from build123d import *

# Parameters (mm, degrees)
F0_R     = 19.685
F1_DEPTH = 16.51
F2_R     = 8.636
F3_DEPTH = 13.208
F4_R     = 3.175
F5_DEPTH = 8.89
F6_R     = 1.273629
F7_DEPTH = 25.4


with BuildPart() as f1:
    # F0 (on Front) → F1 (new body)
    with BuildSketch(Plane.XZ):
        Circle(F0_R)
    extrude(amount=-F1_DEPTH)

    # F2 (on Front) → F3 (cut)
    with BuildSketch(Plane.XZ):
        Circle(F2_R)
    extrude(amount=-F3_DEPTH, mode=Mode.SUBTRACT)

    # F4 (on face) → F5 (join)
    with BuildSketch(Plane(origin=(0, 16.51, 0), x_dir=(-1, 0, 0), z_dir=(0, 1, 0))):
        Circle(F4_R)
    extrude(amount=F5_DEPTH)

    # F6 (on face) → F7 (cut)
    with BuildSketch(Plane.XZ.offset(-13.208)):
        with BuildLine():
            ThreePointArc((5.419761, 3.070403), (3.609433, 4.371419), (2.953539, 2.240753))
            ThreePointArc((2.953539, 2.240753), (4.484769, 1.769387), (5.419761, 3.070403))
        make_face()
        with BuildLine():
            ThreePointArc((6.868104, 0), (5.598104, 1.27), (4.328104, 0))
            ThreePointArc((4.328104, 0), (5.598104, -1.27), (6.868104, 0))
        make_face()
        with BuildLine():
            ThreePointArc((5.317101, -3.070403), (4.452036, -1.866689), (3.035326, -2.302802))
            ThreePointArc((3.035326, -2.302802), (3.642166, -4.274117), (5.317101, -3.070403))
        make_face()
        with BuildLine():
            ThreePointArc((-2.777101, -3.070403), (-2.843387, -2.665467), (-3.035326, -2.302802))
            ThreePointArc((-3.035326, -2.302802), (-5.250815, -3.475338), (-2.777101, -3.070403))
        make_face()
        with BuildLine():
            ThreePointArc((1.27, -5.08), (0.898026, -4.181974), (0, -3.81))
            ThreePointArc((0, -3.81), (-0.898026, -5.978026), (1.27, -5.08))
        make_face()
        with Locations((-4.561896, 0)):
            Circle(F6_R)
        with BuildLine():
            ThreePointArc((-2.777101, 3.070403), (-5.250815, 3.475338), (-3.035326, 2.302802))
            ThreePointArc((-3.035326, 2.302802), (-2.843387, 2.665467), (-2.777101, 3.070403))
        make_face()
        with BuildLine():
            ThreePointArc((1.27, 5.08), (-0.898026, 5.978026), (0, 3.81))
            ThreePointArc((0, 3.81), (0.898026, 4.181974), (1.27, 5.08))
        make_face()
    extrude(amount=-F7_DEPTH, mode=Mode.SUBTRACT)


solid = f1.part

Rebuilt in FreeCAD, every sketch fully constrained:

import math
import FreeCAD as App
import Part
import Sketcher
from FreeCAD import Vector
Q = App.Units.Quantity

doc = App.newDocument("Part")
body = doc.addObject("PartDesign::Body", "Body")

# Sketch on XZ plane
sketch1 = doc.addObject("Sketcher::SketchObject", "Sketch")
body.addObject(sketch1)
sketch1.AttachmentSupport = (doc.XZ_Plane, [""])
sketch1.MapMode = "FlatFace"
sketch1.addGeometry(Part.Circle(Vector(0, 0, 0), Vector(0, 0, 1), 19.685), False)
sketch1.addConstraint(Sketcher.Constraint("Coincident", 0, 3, -1, 1))
sketch1.addConstraint(Sketcher.Constraint("Diameter", 0, Q("1.55 in")))
pad1 = doc.addObject("PartDesign::Pad", "Pad")
body.addObject(pad1)
pad1.Profile = sketch1
pad1.Length = Q("0.65 in")
pad1.Reversed = True

# Sketch on XZ plane
sketch2 = doc.addObject("Sketcher::SketchObject", "Sketch001")
body.addObject(sketch2)
sketch2.AttachmentSupport = (doc.XZ_Plane, [""])
sketch2.MapMode = "FlatFace"
sketch2.addGeometry(Part.Circle(Vector(0, 0, 0), Vector(0, 0, 1), 8.636), False)
sketch2.addConstraint(Sketcher.Constraint("Coincident", 0, 3, -1, 1))
sketch2.addConstraint(Sketcher.Constraint("Diameter", 0, Q("0.68 in")))
pocket1 = doc.addObject("PartDesign::Pocket", "Pocket")
body.addObject(pocket1)
pocket1.Profile = sketch2
pocket1.Length = Q("0.52 in")

# Sketch on XZ plane
sketch3 = doc.addObject("Sketcher::SketchObject", "Sketch002")
body.addObject(sketch3)
sketch3.AttachmentSupport = (doc.XZ_Plane, [""])
sketch3.MapMode = "FlatFace"
sketch3.AttachmentOffset = App.Placement(Vector(0, 0, -0.65 * 25.4), App.Rotation())
sketch3.addGeometry(Part.Circle(Vector(0, 0, 0), Vector(0, 0, 1), 3.175), False)
sketch3.addConstraint(Sketcher.Constraint("Coincident", 0, 3, -1, 1))
sketch3.addConstraint(Sketcher.Constraint("Diameter", 0, Q("0.25 in")))
pad2 = doc.addObject("PartDesign::Pad", "Pad001")
body.addObject(pad2)
pad2.Profile = sketch3
pad2.Length = Q("0.35 in")
pad2.Reversed = True

# Sketch on XZ plane
sketch4 = doc.addObject("Sketcher::SketchObject", "Sketch003")
body.addObject(sketch4)
sketch4.AttachmentSupport = (doc.XZ_Plane, [""])
sketch4.MapMode = "FlatFace"
sketch4.AttachmentOffset = App.Placement(Vector(0, 0, -0.52 * 25.4), App.Rotation())
sketch4.addGeometry(Part.ArcOfCircle(Part.Circle(Vector(4.047101, 3.070403, 0), Vector(0, 0, 1), 1.37266), math.radians(0.000007), math.radians(217.186411)), False)
sketch4.addGeometry(Part.ArcOfCircle(Part.Circle(Vector(4.047101, 3.070403, 0), Vector(0, 0, 1), 1.37266), math.radians(-142.813579), math.radians(-0.000003)), False)
sketch4.addGeometry(Part.Circle(Vector(5.598104, 0, 0), Vector(0, 0, 1), 1.27), False)
sketch4.addGeometry(Part.ArcOfCircle(Part.Circle(Vector(4.047101, -3.070403, 0), Vector(0, 0, 1), 1.27), math.radians(0.000006), math.radians(142.813579)), False)
sketch4.addGeometry(Part.ArcOfCircle(Part.Circle(Vector(4.047101, -3.070403, 0), Vector(0, 0, 1), 1.27), math.radians(142.813587), math.radians(359.999997)), False)
sketch4.addGeometry(Part.ArcOfCircle(Part.Circle(Vector(-4.047097, -3.070402, 0), Vector(0, 0, 1), 1.269996), math.radians(-0.000062), math.radians(37.18648)), False)
sketch4.addGeometry(Part.ArcOfCircle(Part.Circle(Vector(-4.047101, -3.070403, 0), Vector(0, 0, 1), 1.27), math.radians(37.186418), math.radians(360.000001)), False)
sketch4.addGeometry(Part.ArcOfCircle(Part.Circle(Vector(0.000001, -5.079999, 0), Vector(0, 0, 1), 1.269999), math.radians(-0.00006), math.radians(90.00006)), False)
sketch4.addGeometry(Part.ArcOfCircle(Part.Circle(Vector(0, -5.08, 0), Vector(0, 0, 1), 1.27), math.radians(89.99999), math.radians(360.00001)), False)
sketch4.addGeometry(Part.Circle(Vector(-4.561896, 0, 0), Vector(0, 0, 1), 1.273629), False)
sketch4.addGeometry(Part.ArcOfCircle(Part.Circle(Vector(-4.047101, 3.070403, 0), Vector(0, 0, 1), 1.27), math.radians(-0.000001), math.radians(322.813582)), False)
sketch4.addGeometry(Part.ArcOfCircle(Part.Circle(Vector(-4.047097, 3.070402, 0), Vector(0, 0, 1), 1.269996), math.radians(-37.18648), math.radians(0.000062)), False)
sketch4.addGeometry(Part.ArcOfCircle(Part.Circle(Vector(0, 5.08, 0), Vector(0, 0, 1), 1.27), math.radians(-0.00001), math.radians(270.00001)), False)
sketch4.addGeometry(Part.ArcOfCircle(Part.Circle(Vector(0.000001, 5.079999, 0), Vector(0, 0, 1), 1.269999), math.radians(-90.00006), math.radians(0.00006)), False)
sketch4.addConstraint(Sketcher.Constraint("Tangent", 0, 1, 1, 2))
sketch4.addConstraint(Sketcher.Constraint("Coincident", 1, 1, 0, 2))
sketch4.addConstraint(Sketcher.Constraint("Tangent", 3, 1, 4, 2))
sketch4.addConstraint(Sketcher.Constraint("Coincident", 4, 1, 3, 2))
sketch4.addConstraint(Sketcher.Constraint("Tangent", 5, 1, 6, 2))
sketch4.addConstraint(Sketcher.Constraint("Coincident", 6, 1, 5, 2))
sketch4.addConstraint(Sketcher.Constraint("Tangent", 7, 1, 8, 2))
sketch4.addConstraint(Sketcher.Constraint("Coincident", 8, 1, 7, 2))
sketch4.addConstraint(Sketcher.Constraint("Tangent", 10, 1, 11, 2))
sketch4.addConstraint(Sketcher.Constraint("Coincident", 11, 1, 10, 2))
sketch4.addConstraint(Sketcher.Constraint("Tangent", 12, 1, 13, 2))
sketch4.addConstraint(Sketcher.Constraint("Coincident", 13, 1, 12, 2))
sketch4.addConstraint(Sketcher.Constraint("Equal", 2, 3))
sketch4.addConstraint(Sketcher.Constraint("Equal", 4, 6))
sketch4.addConstraint(Sketcher.Constraint("Equal", 6, 7))
sketch4.addConstraint(Sketcher.Constraint("Equal", 8, 10))
sketch4.addConstraint(Sketcher.Constraint("Equal", 10, 12))
sketch4.addConstraint(Sketcher.Constraint("Symmetric", 0, 3, 5, 3, -1, 1))
sketch4.addConstraint(Sketcher.Constraint("Symmetric", 3, 3, 10, 3, -1, 1))
sketch4.addConstraint(Sketcher.Constraint("Symmetric", 7, 3, 12, 3, -1, 1))
sketch4.addConstraint(Sketcher.Constraint("Symmetric", 3, 3, 5, 3, -2))
sketch4.addConstraint(Sketcher.Constraint("Symmetric", 7, 1, 12, 1, -1))
sketch4.addConstraint(Sketcher.Constraint("PointOnObject", 2, 3, -1))
sketch4.addConstraint(Sketcher.Constraint("PointOnObject", 9, 3, -1))
sketch4.addConstraint(Sketcher.Constraint("PointOnObject", 8, 1, -2))
sketch4.addConstraint(Sketcher.Constraint("PointOnObject", 13, 1, -2))
sketch4.addConstraint(Sketcher.Constraint("Horizontal", 11, 3, 0, 1))
sketch4.addConstraint(Sketcher.Constraint("Horizontal", 6, 3, 3, 1))
sketch4.addConstraint(Sketcher.Constraint("Horizontal", 3, 1, 5, 1))
sketch4.addConstraint(Sketcher.Constraint("Horizontal", 4, 1, 6, 1))
sketch4.addConstraint(Sketcher.Constraint("Horizontal", 8, 3, 7, 1))
sketch4.addConstraint(Sketcher.Constraint("Horizontal", 0, 1, 10, 1))
sketch4.addConstraint(Sketcher.Constraint("Vertical", 6, 1, 11, 1))
sketch4.addConstraint(Sketcher.Constraint("Diameter", 2, Q("0.1 in")))
sketch4.addConstraint(Sketcher.Constraint("DistanceY", 7, 3, -1, 1, Q("0.1999999 in")))
sketch4.addConstraint(Sketcher.Constraint("Radius", 0, Q("1.37266 mm")))
sketch4.addConstraint(Sketcher.Constraint("Diameter", 9, Q("2.547258 mm")))
sketch4.addConstraint(Sketcher.Constraint("DistanceX", -1, 1, 0, 3, Q("4.047101 mm")))
sketch4.addConstraint(Sketcher.Constraint("DistanceY", 5, 3, -1, 1, Q("3.070402 mm")))
sketch4.addConstraint(Sketcher.Constraint("DistanceY", 4, 1, -1, 1, Q("2.302802 mm")))
sketch4.addConstraint(Sketcher.Constraint("DistanceX", 5, 3, 2, 3, Q("9.645201 mm")))
sketch4.addConstraint(Sketcher.Constraint("DistanceX", 9, 3, 5, 3, Q("0.514799 mm")))
sketch4.addConstraint(Sketcher.Constraint("DistanceX", -1, 1, 1, 1, Q("2.953539 mm")))
pocket2 = doc.addObject("PartDesign::Pocket", "Pocket001")
body.addObject(pocket2)
pocket2.Profile = sketch4
pocket2.Length = Q("1 in")

doc.recompute()
